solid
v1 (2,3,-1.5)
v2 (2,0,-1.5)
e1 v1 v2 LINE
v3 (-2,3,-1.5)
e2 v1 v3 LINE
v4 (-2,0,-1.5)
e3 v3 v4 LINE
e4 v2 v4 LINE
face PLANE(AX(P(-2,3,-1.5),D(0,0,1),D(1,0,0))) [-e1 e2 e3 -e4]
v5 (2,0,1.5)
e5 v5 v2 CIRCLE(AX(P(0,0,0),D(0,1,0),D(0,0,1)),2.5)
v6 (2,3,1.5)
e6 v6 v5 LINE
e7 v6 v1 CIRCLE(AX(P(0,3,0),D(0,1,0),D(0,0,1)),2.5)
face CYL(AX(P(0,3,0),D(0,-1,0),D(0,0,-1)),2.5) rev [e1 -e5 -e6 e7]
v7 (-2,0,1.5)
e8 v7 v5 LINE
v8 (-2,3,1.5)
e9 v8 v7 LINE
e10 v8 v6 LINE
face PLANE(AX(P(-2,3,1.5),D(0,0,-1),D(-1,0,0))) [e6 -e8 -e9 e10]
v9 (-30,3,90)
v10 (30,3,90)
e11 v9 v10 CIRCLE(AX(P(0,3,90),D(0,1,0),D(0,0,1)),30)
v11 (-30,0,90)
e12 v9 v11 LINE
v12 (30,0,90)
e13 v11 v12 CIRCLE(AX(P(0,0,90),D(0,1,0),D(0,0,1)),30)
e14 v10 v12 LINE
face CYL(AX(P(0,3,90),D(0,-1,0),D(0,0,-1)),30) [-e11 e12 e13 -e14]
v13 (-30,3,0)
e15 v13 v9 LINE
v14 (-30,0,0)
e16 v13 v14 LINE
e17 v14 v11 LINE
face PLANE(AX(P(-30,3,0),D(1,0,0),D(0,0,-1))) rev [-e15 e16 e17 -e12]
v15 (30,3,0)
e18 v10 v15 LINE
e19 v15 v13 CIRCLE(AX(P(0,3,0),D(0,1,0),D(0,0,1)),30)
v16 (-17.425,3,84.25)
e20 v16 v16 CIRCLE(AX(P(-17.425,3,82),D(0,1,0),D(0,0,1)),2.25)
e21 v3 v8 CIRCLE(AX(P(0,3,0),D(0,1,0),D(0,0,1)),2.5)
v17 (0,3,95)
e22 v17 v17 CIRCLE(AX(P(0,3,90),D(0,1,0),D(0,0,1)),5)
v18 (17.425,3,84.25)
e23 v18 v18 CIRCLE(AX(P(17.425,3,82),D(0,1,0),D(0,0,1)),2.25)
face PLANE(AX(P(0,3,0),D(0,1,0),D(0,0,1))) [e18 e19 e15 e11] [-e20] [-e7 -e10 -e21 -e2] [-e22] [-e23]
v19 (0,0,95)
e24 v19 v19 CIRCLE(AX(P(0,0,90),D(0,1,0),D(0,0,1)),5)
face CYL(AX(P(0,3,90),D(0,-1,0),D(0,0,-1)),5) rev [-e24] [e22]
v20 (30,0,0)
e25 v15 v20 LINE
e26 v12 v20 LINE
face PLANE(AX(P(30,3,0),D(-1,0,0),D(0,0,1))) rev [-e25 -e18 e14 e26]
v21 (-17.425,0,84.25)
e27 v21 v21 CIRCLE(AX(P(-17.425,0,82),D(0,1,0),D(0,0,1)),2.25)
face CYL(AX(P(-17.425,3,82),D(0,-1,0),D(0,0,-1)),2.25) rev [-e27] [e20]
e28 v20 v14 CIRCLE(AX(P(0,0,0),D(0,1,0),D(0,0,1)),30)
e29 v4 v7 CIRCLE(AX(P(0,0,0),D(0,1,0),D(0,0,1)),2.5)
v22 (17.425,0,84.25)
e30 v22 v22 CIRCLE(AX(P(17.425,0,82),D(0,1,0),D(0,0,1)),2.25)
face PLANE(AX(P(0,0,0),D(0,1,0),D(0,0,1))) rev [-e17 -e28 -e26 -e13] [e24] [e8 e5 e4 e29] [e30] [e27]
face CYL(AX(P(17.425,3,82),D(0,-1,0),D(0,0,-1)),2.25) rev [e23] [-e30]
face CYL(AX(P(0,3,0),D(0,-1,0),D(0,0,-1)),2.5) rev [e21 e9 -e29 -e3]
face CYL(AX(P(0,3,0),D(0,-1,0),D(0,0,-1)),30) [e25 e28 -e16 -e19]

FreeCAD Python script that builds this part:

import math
import FreeCAD as App
import Part
import Sketcher
Q = App.Units.Quantity

doc = App.newDocument("Part")
body = doc.addObject("PartDesign::Body", "Body")

# Sketch on XZ plane
sketch1 = body.newObject("Sketcher::SketchObject", "Sketch")
sketch1.AttachmentSupport = (doc.getObject("XZ_Plane"), [""])
sketch1.MapMode = "FlatFace"
sketch1.addGeometry(Part.LineSegment(App.Vector(-30, 0, 0), App.Vector(-30, 90, 0)), False)
sketch1.addGeometry(Part.ArcOfCircle(Part.Circle(App.Vector(0, 90, 0), App.Vector(0, 0, 1), 30), math.radians(0), math.radians(180)), False)
sketch1.addGeometry(Part.LineSegment(App.Vector(30, 90, 0), App.Vector(30, 0, 0)), False)
sketch1.addGeometry(Part.ArcOfCircle(Part.Circle(App.Vector(0, 0, 0), App.Vector(0, 0, 1), 30), math.radians(180), math.radians(360)), False)
sketch1.addGeometry(Part.Circle(App.Vector(-17.425, 82, 0), App.Vector(0, 0, 1), 2.25), False)
sketch1.addGeometry(Part.Circle(App.Vector(0, 90, 0), App.Vector(0, 0, 1), 5), False)
sketch1.addGeometry(Part.Circle(App.Vector(17.425, 82, 0), App.Vector(0, 0, 1), 2.25), False)
sketch1.addGeometry(Part.LineSegment(App.Vector(2, 1.5, 0), App.Vector(-2, 1.5, 0)), False)
sketch1.addGeometry(Part.ArcOfCircle(Part.Circle(App.Vector(0, 0, 0), App.Vector(0, 0, 1), 2.5), math.radians(143.130102), math.radians(216.869898)), False)
sketch1.addGeometry(Part.LineSegment(App.Vector(-2, -1.5, 0), App.Vector(2, -1.5, 0)), False)
sketch1.addGeometry(Part.ArcOfCircle(Part.Circle(App.Vector(0, 0, 0), App.Vector(0, 0, 1), 2.5), math.radians(-36.869898), math.radians(36.869898)), False)
sketch1.addConstraint(Sketcher.Constraint("Tangent", 0, 2, 1, 2))
sketch1.addConstraint(Sketcher.Constraint("Tangent", 1, 1, 2, 1))
sketch1.addConstraint(Sketcher.Constraint("Tangent", 2, 2, 3, 2))
sketch1.addConstraint(Sketcher.Constraint("Tangent", 3, 1, 0, 1))
sketch1.addConstraint(Sketcher.Constraint("Coincident", 7, 2, 8, 1))
sketch1.addConstraint(Sketcher.Constraint("Coincident", 8, 2, 9, 1))
sketch1.addConstraint(Sketcher.Constraint("Coincident", 9, 2, 10, 1))
sketch1.addConstraint(Sketcher.Constraint("Coincident", 10, 2, 7, 1))
sketch1.addConstraint(Sketcher.Constraint("Vertical", 0))
sketch1.addConstraint(Sketcher.Constraint("Vertical", 2))
sketch1.addConstraint(Sketcher.Constraint("Horizontal", 7))
sketch1.addConstraint(Sketcher.Constraint("Horizontal", 9))
sketch1.addConstraint(Sketcher.Constraint("Coincident", 3, 3, -1, 1))
sketch1.addConstraint(Sketcher.Constraint("Coincident", 8, 3, -1, 1))
sketch1.addConstraint(Sketcher.Constraint("Coincident", 10, 3, -1, 1))
sketch1.addConstraint(Sketcher.Constraint("Coincident", 5, 3, 1, 3))
sketch1.addConstraint(Sketcher.Constraint("Equal", 4, 6))
sketch1.addConstraint(Sketcher.Constraint("Equal", 8, 10))
sketch1.addConstraint(Sketcher.Constraint("Symmetric", 4, 3, 6, 3, -2))
sketch1.addConstraint(Sketcher.Constraint("Vertical", 7, 2, 8, 2))
sketch1.addConstraint(Sketcher.Constraint("Diameter", 5, Q("10 mm")))
sketch1.addConstraint(Sketcher.Constraint("Radius", 1, Q("30 mm")))
sketch1.addConstraint(Sketcher.Constraint("Diameter", 4, Q("4.5 mm")))
sketch1.addConstraint(Sketcher.Constraint("Radius", 8, Q("2.5 mm")))
sketch1.addConstraint(Sketcher.Constraint("DistanceX", 7, 2, 7, 1, Q("4 mm")))
sketch1.addConstraint(Sketcher.Constraint("DistanceY", 0, 1, 0, 2, Q("90 mm")))
sketch1.addConstraint(Sketcher.Constraint("DistanceY", -1, 1, 4, 3, Q("82 mm")))
sketch1.addConstraint(Sketcher.Constraint("DistanceX", 4, 3, 6, 3, Q("34.85 mm")))
pad1 = body.newObject("PartDesign::Pad", "Pad")
pad1.Profile = sketch1
pad1.Length = 3
pad1.Reversed = True

doc.recompute()
